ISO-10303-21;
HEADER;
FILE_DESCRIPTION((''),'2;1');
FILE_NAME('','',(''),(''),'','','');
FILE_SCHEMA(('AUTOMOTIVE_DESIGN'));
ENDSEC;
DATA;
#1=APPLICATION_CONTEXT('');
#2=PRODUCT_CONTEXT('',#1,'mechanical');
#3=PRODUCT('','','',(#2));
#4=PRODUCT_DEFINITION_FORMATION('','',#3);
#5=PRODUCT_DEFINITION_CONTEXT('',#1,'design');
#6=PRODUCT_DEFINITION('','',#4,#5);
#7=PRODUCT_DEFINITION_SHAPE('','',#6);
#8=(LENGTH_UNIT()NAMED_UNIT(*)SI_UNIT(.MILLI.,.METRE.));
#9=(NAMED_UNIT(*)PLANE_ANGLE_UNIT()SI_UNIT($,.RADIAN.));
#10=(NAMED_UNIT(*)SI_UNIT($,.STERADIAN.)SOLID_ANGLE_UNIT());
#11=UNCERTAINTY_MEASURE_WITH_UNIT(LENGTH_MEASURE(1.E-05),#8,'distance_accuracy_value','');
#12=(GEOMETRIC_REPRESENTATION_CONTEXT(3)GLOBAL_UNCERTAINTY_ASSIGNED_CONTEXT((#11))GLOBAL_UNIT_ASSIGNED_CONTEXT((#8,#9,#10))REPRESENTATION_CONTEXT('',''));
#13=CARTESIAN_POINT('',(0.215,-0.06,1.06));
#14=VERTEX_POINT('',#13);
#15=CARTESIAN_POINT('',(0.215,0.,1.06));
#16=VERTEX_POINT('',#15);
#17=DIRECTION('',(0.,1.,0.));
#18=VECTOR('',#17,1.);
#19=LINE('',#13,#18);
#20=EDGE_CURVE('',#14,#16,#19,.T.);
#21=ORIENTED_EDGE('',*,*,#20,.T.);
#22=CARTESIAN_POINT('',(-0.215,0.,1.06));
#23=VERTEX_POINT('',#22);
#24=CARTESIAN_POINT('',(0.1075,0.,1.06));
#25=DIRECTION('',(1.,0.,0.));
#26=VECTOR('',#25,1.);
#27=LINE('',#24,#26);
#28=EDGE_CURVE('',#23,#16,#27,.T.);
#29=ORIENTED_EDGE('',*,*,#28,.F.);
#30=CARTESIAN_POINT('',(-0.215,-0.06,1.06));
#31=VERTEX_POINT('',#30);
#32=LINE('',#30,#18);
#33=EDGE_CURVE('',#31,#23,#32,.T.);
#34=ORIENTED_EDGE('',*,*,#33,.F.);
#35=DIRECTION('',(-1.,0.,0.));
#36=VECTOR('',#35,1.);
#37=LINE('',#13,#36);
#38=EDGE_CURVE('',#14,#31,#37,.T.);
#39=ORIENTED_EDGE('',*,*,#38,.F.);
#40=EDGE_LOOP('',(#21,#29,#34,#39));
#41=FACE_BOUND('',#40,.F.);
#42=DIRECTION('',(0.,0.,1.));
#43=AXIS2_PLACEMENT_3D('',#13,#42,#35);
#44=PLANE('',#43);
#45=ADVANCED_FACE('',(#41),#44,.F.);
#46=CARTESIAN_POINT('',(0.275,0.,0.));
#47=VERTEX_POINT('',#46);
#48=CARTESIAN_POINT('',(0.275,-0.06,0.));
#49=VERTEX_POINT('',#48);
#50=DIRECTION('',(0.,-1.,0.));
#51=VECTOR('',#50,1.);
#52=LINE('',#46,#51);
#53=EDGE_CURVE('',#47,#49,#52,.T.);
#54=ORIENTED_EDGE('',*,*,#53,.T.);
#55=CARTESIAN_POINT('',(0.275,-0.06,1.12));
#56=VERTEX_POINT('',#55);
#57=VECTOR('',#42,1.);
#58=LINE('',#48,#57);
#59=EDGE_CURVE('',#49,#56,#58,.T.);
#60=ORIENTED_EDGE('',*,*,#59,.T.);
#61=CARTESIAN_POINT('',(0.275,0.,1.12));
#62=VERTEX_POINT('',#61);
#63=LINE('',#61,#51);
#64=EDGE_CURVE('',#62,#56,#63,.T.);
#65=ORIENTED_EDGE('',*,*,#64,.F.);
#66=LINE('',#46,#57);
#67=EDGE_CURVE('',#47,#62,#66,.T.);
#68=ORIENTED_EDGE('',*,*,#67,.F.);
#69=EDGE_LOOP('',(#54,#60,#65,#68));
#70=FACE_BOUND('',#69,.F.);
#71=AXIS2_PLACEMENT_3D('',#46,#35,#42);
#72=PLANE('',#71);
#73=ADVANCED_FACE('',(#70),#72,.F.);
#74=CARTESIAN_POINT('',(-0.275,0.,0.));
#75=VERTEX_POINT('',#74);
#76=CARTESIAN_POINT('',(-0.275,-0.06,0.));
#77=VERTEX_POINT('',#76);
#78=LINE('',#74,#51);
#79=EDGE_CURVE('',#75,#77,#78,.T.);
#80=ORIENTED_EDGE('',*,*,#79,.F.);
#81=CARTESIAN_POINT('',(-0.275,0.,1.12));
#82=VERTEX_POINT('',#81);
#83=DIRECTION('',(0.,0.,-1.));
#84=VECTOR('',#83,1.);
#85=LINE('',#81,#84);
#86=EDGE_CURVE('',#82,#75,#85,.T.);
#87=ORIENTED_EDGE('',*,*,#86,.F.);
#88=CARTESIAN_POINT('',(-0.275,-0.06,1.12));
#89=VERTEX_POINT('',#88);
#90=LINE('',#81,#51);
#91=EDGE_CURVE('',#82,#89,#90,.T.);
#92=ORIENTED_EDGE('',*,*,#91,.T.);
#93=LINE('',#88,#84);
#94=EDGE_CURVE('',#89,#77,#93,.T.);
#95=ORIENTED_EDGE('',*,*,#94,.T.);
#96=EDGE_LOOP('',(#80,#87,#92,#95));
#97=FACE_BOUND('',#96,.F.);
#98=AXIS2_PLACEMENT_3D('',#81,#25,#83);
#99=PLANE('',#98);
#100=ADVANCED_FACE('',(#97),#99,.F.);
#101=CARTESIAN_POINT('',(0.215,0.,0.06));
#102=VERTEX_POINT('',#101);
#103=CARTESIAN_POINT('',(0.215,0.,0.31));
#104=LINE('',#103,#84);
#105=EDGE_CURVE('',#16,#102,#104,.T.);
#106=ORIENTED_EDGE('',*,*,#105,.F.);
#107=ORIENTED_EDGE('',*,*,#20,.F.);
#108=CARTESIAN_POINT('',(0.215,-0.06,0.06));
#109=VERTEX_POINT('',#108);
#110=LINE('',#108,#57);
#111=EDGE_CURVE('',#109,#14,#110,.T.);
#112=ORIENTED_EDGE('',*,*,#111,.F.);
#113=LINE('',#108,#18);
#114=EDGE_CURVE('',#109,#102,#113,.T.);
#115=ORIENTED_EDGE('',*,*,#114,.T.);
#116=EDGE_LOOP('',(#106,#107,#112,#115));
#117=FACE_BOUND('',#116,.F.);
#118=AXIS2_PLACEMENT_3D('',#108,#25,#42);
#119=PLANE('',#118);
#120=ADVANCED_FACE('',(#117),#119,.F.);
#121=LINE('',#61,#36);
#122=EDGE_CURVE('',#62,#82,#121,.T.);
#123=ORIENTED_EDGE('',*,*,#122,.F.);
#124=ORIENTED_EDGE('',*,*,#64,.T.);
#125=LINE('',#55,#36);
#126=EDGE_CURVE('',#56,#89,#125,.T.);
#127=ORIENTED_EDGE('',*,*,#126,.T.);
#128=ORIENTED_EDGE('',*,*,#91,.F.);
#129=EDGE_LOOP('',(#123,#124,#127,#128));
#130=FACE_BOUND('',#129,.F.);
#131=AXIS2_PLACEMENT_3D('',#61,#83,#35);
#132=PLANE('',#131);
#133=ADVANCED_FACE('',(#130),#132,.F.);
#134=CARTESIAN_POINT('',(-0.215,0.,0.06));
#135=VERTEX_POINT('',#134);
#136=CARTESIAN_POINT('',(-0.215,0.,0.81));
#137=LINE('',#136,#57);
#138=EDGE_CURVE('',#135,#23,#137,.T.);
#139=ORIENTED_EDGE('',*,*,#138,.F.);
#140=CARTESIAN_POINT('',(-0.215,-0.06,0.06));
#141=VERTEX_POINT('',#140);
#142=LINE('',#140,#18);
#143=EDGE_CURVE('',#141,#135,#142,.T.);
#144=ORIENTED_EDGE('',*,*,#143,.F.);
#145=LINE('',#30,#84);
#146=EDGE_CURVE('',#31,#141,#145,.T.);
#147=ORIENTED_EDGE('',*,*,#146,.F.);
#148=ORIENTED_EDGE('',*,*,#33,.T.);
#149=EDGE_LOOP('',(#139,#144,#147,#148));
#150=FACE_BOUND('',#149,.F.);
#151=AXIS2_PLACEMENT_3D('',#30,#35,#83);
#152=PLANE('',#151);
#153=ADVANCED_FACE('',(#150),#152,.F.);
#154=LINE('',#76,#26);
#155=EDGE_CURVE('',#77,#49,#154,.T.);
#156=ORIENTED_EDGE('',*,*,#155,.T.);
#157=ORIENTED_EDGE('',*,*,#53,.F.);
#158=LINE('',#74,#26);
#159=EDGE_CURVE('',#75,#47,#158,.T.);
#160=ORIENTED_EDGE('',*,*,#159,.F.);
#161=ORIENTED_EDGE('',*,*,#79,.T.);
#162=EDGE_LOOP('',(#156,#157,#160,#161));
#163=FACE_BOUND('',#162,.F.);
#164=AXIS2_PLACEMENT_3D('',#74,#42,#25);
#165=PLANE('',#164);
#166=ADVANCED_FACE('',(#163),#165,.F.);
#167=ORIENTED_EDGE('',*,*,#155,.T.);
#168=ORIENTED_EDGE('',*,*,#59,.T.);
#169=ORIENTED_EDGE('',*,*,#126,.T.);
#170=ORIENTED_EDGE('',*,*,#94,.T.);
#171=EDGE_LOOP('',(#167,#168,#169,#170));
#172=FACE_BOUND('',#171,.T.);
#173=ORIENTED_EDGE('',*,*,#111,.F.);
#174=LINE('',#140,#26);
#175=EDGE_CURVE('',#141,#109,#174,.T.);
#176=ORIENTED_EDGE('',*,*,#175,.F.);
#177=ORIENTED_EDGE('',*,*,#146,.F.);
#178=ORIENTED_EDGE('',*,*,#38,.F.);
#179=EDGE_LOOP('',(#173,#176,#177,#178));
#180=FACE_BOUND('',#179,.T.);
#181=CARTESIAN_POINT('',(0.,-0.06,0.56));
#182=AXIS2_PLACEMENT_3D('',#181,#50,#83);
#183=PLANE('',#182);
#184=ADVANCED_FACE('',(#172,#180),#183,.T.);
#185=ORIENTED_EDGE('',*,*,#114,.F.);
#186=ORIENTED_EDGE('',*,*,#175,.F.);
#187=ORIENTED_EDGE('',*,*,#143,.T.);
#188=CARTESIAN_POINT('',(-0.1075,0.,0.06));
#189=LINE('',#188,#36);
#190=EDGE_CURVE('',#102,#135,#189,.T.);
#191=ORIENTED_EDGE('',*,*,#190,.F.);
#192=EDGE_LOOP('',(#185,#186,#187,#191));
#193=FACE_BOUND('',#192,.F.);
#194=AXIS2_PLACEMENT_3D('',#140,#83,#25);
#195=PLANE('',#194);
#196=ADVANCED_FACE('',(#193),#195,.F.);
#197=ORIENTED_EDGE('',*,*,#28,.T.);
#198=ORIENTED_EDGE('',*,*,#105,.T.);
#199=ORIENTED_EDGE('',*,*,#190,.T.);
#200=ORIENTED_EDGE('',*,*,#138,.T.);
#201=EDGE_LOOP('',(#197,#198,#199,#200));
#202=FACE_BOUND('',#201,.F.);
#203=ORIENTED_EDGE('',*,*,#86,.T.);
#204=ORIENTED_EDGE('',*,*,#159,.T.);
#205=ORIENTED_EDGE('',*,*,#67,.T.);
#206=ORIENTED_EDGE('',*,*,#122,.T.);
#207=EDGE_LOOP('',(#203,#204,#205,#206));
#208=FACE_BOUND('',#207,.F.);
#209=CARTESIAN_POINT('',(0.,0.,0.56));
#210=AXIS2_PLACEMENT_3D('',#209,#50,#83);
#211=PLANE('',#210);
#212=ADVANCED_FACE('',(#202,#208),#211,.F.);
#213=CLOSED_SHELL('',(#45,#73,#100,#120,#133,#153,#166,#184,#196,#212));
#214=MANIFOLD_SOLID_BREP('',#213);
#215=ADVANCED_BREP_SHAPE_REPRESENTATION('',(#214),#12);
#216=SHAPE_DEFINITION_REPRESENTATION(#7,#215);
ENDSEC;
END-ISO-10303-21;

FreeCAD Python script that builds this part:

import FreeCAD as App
import Part
import Sketcher

V = App.Vector


def add_polygon(sketch, points):
    """Adds a closed chain of lines whose ends are joined by coincident constraints."""
    first, n = sketch.GeometryCount, len(points)
    for a, b in zip(points, points[1:] + points[:1]):
        sketch.addGeometry(Part.LineSegment(App.Vector(*a, 0), App.Vector(*b, 0)), False)
    for i in range(n):
        sketch.addConstraint(Sketcher.Constraint("Coincident", first + i, 2, first + (i + 1) % n, 1))

doc = App.newDocument("Part")
params = doc.addObject("Spreadsheet::Sheet", "Params")
for row, (alias, value) in enumerate([
    ("sketch1_height", "1.12 mm"),
    ("pad1_length", "0.06 mm"),
    ("sketch2_height", "1 mm"),
], start=1):
    params.set(f"A{row}", alias)
    params.set(f"B{row}", "=" + value)
    params.setAlias(f"B{row}", alias)

body = doc.addObject("PartDesign::Body", "Body")

# Sketch on XZ plane
sketch1 = body.newObject("Sketcher::SketchObject", "Sketch")
sketch1.AttachmentSupport = (doc.getObject("XZ_Plane"), [""])
sketch1.MapMode = "FlatFace"
add_polygon(sketch1, [(-0.3, 1.1), (-0.3, 0), (0.3, 0), (0.3, 1.1)])  # lines 0-3
sketch1.addConstraint([
    Sketcher.Constraint("Vertical", 0),
    Sketcher.Constraint("Horizontal", 1),
    Sketcher.Constraint("Vertical", 2),
    Sketcher.Constraint("Horizontal", 3),
    Sketcher.Constraint("Symmetric", 0, 2, 1, 2, -1, 1),
    Sketcher.Constraint("DistanceX", 0, 2, -1, 1, 0.275),
    Sketcher.Constraint("DistanceY", 0, 2, 0, 1, 1.12),
])
sketch1.setExpression("Constraints[10]", "Params.sketch1_height")
pad1 = body.newObject("PartDesign::Pad", "Pad")
pad1.Profile = sketch1
pad1.setExpression("Length", "Params.pad1_length")

# Sketch on XZ plane
sketch2 = body.newObject("Sketcher::SketchObject", "Sketch001")
sketch2.AttachmentSupport = (doc.getObject("XZ_Plane"), [""])
sketch2.MapMode = "FlatFace"
sketch2.AttachmentOffset = App.Placement(V(0, 0, 0.06), App.Rotation())
add_polygon(sketch2, [(-0.21, 1.06), (-0.21, 0.06), (0.21, 0.06), (0.21, 1.06)])  # lines 0-3
sketch2.addConstraint([
    Sketcher.Constraint("Vertical", 0),
    Sketcher.Constraint("Horizontal", 1),
    Sketcher.Constraint("Vertical", 2),
    Sketcher.Constraint("Horizontal", 3),
    Sketcher.Constraint("DistanceY", 0, 2, 0, 1, 1.0),
    Sketcher.Constraint("DistanceX", 0, 2, -1, 1, 0.215),
    Sketcher.Constraint("DistanceX", -1, 1, 1, 2, 0.215),
    Sketcher.Constraint("DistanceY", -1, 1, 0, 2, 0.06),
])
sketch2.setExpression("Constraints[8]", "Params.sketch2_height")
pocket1 = body.newObject("PartDesign::Pocket", "Pocket")
pocket1.Profile = sketch2
pocket1.Type = "UpToFirst"

doc.recompute()
